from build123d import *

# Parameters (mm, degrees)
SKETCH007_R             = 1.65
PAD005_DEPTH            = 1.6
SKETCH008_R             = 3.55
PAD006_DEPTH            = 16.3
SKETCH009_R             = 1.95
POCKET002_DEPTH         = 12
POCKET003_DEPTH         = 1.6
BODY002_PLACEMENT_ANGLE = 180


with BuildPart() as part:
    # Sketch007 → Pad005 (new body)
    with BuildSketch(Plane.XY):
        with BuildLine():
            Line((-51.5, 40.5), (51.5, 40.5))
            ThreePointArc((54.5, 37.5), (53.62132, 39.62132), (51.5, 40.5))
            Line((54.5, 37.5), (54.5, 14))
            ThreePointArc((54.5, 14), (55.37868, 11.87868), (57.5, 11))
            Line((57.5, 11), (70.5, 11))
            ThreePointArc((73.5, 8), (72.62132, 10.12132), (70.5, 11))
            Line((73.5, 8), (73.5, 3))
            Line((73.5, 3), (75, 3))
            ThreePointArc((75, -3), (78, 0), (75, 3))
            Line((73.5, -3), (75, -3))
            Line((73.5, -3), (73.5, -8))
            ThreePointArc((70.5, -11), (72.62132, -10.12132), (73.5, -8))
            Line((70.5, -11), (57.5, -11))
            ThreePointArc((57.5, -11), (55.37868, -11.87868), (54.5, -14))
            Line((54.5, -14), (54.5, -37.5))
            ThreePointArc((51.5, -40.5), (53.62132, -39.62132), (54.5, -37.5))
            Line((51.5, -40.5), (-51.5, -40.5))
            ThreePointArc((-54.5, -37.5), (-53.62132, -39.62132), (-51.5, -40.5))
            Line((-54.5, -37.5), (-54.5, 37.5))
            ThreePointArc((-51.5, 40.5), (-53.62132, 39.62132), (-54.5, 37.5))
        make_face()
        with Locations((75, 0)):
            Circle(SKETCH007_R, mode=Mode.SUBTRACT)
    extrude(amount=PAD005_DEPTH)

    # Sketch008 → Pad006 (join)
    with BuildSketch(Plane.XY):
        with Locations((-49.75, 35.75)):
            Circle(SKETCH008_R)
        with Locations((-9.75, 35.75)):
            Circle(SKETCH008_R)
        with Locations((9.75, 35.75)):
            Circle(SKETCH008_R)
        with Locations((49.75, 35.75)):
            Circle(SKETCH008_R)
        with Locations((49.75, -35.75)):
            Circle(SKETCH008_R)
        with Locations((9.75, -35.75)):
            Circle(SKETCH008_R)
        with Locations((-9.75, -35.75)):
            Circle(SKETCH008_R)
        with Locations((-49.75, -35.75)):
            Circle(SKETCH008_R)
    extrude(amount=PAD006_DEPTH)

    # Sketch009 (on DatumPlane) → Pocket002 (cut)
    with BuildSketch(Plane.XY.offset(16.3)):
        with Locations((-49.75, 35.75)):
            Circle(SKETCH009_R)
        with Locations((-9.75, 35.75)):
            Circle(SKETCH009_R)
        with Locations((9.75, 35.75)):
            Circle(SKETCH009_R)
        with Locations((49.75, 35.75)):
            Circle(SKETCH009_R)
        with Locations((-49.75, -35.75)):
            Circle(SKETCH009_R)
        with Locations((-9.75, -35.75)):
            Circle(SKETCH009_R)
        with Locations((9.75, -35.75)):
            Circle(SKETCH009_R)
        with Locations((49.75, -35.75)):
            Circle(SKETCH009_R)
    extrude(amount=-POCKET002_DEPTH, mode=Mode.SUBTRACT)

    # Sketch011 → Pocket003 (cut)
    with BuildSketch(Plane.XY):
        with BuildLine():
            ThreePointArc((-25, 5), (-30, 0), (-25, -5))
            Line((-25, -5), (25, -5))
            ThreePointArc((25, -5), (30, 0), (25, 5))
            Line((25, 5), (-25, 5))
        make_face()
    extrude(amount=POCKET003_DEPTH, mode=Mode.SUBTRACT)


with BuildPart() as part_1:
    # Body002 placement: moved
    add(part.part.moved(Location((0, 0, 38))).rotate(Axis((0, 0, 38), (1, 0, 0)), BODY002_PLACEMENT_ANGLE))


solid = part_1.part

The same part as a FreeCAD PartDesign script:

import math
import FreeCAD as App
import Part
import Sketcher
from FreeCAD import Vector
Q = App.Units.Quantity

doc = App.newDocument("Part")
params = doc.addObject("Spreadsheet::Sheet", "Params")
for row, (alias, value) in enumerate([
    ("sketch1_radius", "3.000001 mm"),
    ("sketch1_diameter", "3.3 mm"),
    ("sketch1_width", "103 mm"),
    ("sketch1_width2", "13 mm"),
    ("sketch1_height", "75 mm"),
    ("pad1_length", "1.6 mm"),
    ("sketch2_diameter", "7.1 mm"),
    ("pad2_length", "16.3 mm"),
    ("sketch3_diameter", "3.9 mm"),
    ("pocket1_length", "12 mm"),
    ("sketch4_radius", "5 mm"),
    ("sketch4_width", "50 mm"),
    ("pocket2_length", "1.6 mm"),
], start=1):
    params.set(f"A{row}", alias)
    params.set(f"B{row}", "=" + value)
    params.setAlias(f"B{row}", alias)

body = doc.addObject("PartDesign::Body", "Body")

# Sketch on XY plane
sketch1 = body.newObject("Sketcher::SketchObject", "Sketch")
sketch1.AttachmentSupport = (doc.getObject("XY_Plane"), [""])
sketch1.MapMode = "FlatFace"
sketch1.addGeometry(Part.LineSegment(Vector(51.5, 40.5, 0), Vector(-51.5, 40.5, 0)), False)
sketch1.addGeometry(Part.ArcOfCircle(Part.Circle(Vector(-51.5, 37.5, 0), Vector(0, 0, 1), 3), math.radians(90), math.radians(180)), False)
sketch1.addGeometry(Part.LineSegment(Vector(-54.5, 37.5, 0), Vector(-54.5, -37.5, 0)), False)
sketch1.addGeometry(Part.ArcOfCircle(Part.Circle(Vector(-51.5, -37.5, 0), Vector(0, 0, 1), 3), math.radians(-180), math.radians(-90)), False)
sketch1.addGeometry(Part.LineSegment(Vector(-51.5, -40.5, 0), Vector(51.5, -40.5, 0)), False)
sketch1.addGeometry(Part.ArcOfCircle(Part.Circle(Vector(51.5, -37.5, 0), Vector(0, 0, 1), 3), math.radians(-90), math.radians(0)), False)
sketch1.addGeometry(Part.LineSegment(Vector(54.5, -37.5, 0), Vector(54.5, -14, 0)), False)
sketch1.addGeometry(Part.ArcOfCircle(Part.Circle(Vector(57.5, -14, 0), Vector(0, 0, 1), 3), math.radians(90), math.radians(180)), False)
sketch1.addGeometry(Part.LineSegment(Vector(57.5, -11, 0), Vector(70.5, -11, 0)), False)
sketch1.addGeometry(Part.ArcOfCircle(Part.Circle(Vector(70.5, -8, 0), Vector(0, 0, 1), 3), math.radians(-90), math.radians(0)), False)
sketch1.addGeometry(Part.LineSegment(Vector(73.5, -8, 0), Vector(73.5, -3, 0)), False)
sketch1.addGeometry(Part.LineSegment(Vector(73.5, -3, 0), Vector(75, -3, 0)), False)
sketch1.addGeometry(Part.ArcOfCircle(Part.Circle(Vector(75, 0, 0), Vector(0, 0, 1), 3), math.radians(-90), math.radians(90)), False)
sketch1.addGeometry(Part.LineSegment(Vector(75, 3, 0), Vector(73.5, 3, 0)), False)
sketch1.addGeometry(Part.LineSegment(Vector(73.5, 3, 0), Vector(73.5, 8, 0)), False)
sketch1.addGeometry(Part.ArcOfCircle(Part.Circle(Vector(70.5, 8, 0), Vector(0, 0, 1), 3), math.radians(0), math.radians(90)), False)
sketch1.addGeometry(Part.LineSegment(Vector(70.5, 11, 0), Vector(57.5, 11, 0)), False)
sketch1.addGeometry(Part.ArcOfCircle(Part.Circle(Vector(57.5, 14, 0), Vector(0, 0, 1), 3), math.radians(-180), math.radians(-90)), False)
sketch1.addGeometry(Part.LineSegment(Vector(54.5, 14, 0), Vector(54.5, 37.5, 0)), False)
sketch1.addGeometry(Part.ArcOfCircle(Part.Circle(Vector(51.5, 37.5, 0), Vector(0, 0, 1), 3), math.radians(0), math.radians(90)), False)
sketch1.addGeometry(Part.Circle(Vector(75, 0, 0), Vector(0, 0, 1), 1.6), False)
sketch1.addConstraint(Sketcher.Constraint("Tangent", 0, 2, 1, 1))
sketch1.addConstraint(Sketcher.Constraint("Tangent", 1, 2, 2, 1))
sketch1.addConstraint(Sketcher.Constraint("Tangent", 2, 2, 3, 1))
sketch1.addConstraint(Sketcher.Constraint("Tangent", 3, 2, 4, 1))
sketch1.addConstraint(Sketcher.Constraint("Tangent", 4, 2, 5, 1))
sketch1.addConstraint(Sketcher.Constraint("Tangent", 5, 2, 6, 1))
sketch1.addConstraint(Sketcher.Constraint("Tangent", 6, 2, 7, 2))
sketch1.addConstraint(Sketcher.Constraint("Tangent", 7, 1, 8, 1))
sketch1.addConstraint(Sketcher.Constraint("Tangent", 8, 2, 9, 1))
sketch1.addConstraint(Sketcher.Constraint("Tangent", 9, 2, 10, 1))
sketch1.addConstraint(Sketcher.Constraint("Coincident", 10, 2, 11, 1))
sketch1.addConstraint(Sketcher.Constraint("Tangent", 11, 2, 12, 1))
sketch1.addConstraint(Sketcher.Constraint("Tangent", 12, 2, 13, 1))
sketch1.addConstraint(Sketcher.Constraint("Coincident", 13, 2, 14, 1))
sketch1.addConstraint(Sketcher.Constraint("Tangent", 14, 2, 15, 1))
sketch1.addConstraint(Sketcher.Constraint("Tangent", 15, 2, 16, 1))
sketch1.addConstraint(Sketcher.Constraint("Tangent", 16, 2, 17, 2))
sketch1.addConstraint(Sketcher.Constraint("Tangent", 17, 1, 18, 1))
sketch1.addConstraint(Sketcher.Constraint("Tangent", 18, 2, 19, 1))
sketch1.addConstraint(Sketcher.Constraint("Tangent", 19, 2, 0, 1))
sketch1.addConstraint(Sketcher.Constraint("Horizontal", 0))
sketch1.addConstraint(Sketcher.Constraint("Vertical", 2))
sketch1.addConstraint(Sketcher.Constraint("Horizontal", 4))
sketch1.addConstraint(Sketcher.Constraint("Vertical", 6))
sketch1.addConstraint(Sketcher.Constraint("Horizontal", 8))
sketch1.addConstraint(Sketcher.Constraint("Vertical", 10))
sketch1.addConstraint(Sketcher.Constraint("Horizontal", 11))
sketch1.addConstraint(Sketcher.Constraint("Horizontal", 13))
sketch1.addConstraint(Sketcher.Constraint("Vertical", 14))
sketch1.addConstraint(Sketcher.Constraint("Horizontal", 16))
sketch1.addConstraint(Sketcher.Constraint("Vertical", 18))
sketch1.addConstraint(Sketcher.Constraint("Coincident", 20, 3, 12, 3))
sketch1.addConstraint(Sketcher.Constraint("Equal", 1, 3))
sketch1.addConstraint(Sketcher.Constraint("Equal", 3, 5))
sketch1.addConstraint(Sketcher.Constraint("Equal", 5, 7))
sketch1.addConstraint(Sketcher.Constraint("Equal", 7, 9))
sketch1.addConstraint(Sketcher.Constraint("Equal", 9, 12))
sketch1.addConstraint(Sketcher.Constraint("Equal", 12, 15))
sketch1.addConstraint(Sketcher.Constraint("Equal", 15, 17))
sketch1.addConstraint(Sketcher.Constraint("Equal", 17, 19))
sketch1.addConstraint(Sketcher.Constraint("Symmetric", 1, 3, 5, 3, -1, 1))
sketch1.addConstraint(Sketcher.Constraint("Symmetric", 9, 3, 15, 3, -1))
sketch1.addConstraint(Sketcher.Constraint("PointOnObject", 12, 3, -1))
sketch1.addConstraint(Sketcher.Constraint("Vertical", 7, 3, 17, 3))
sketch1.addConstraint(Sketcher.Constraint("Radius", 1, Q("3.000001 mm")))
sketch1.addConstraint(Sketcher.Constraint("Diameter", 20, Q("3.3 mm")))
sketch1.addConstraint(Sketcher.Constraint("DistanceX", 0, 2, 0, 1, Q("103 mm")))
sketch1.addConstraint(Sketcher.Constraint("DistanceX", 8, 1, 8, 2, Q("13 mm")))
sketch1.addConstraint(Sketcher.Constraint("DistanceY", 2, 2, 2, 1, Q("75 mm")))
sketch1.addConstraint(Sketcher.Constraint("DistanceY", 10, 1, 10, 2, Q("5 mm")))
sketch1.addConstraint(Sketcher.Constraint("DistanceX", 11, 1, 11, 2, Q("1.5 mm")))
sketch1.setExpression("Constraints[44]", "Params.sketch1_radius")
sketch1.setExpression("Constraints[45]", "Params.sketch1_diameter")
sketch1.setExpression("Constraints[46]", "Params.sketch1_width")
sketch1.setExpression("Constraints[47]", "Params.sketch1_width2")
sketch1.setExpression("Constraints[48]", "Params.sketch1_height")
pad1 = body.newObject("PartDesign::Pad", "Pad")
pad1.Profile = sketch1
pad1.setExpression("Length", "Params.pad1_length")

# Sketch on XY plane
sketch2 = body.newObject("Sketcher::SketchObject", "Sketch001")
sketch2.AttachmentSupport = (doc.getObject("XY_Plane"), [""])
sketch2.MapMode = "FlatFace"
sketch2.addGeometry(Part.Circle(Vector(-49.8, 35.8, 0), Vector(0, 0, 1), 3.5), False)
sketch2.addGeometry(Part.Circle(Vector(-9.8, 35.8, 0), Vector(0, 0, 1), 3.5), False)
sketch2.addGeometry(Part.Circle(Vector(9.8, 35.8, 0), Vector(0, 0, 1), 3.5), False)
sketch2.addGeometry(Part.Circle(Vector(49.8, 35.8, 0), Vector(0, 0, 1), 3.5), False)
sketch2.addGeometry(Part.Circle(Vector(49.8, -35.8, 0), Vector(0, 0, 1), 3.5), False)
sketch2.addGeometry(Part.Circle(Vector(9.8, -35.8, 0), Vector(0, 0, 1), 3.5), False)
sketch2.addGeometry(Part.Circle(Vector(-9.8, -35.8, 0), Vector(0, 0, 1), 3.5), False)
sketch2.addGeometry(Part.Circle(Vector(-49.8, -35.8, 0), Vector(0, 0, 1), 3.5), False)
sketch2.addConstraint(Sketcher.Constraint("Equal", 0, 1))
sketch2.addConstraint(Sketcher.Constraint("Equal", 1, 2))
sketch2.addConstraint(Sketcher.Constraint("Equal", 2, 3))
sketch2.addConstraint(Sketcher.Constraint("Equal", 3, 4))
sketch2.addConstraint(Sketcher.Constraint("Equal", 4, 5))
sketch2.addConstraint(Sketcher.Constraint("Equal", 5, 6))
sketch2.addConstraint(Sketcher.Constraint("Equal", 6, 7))
sketch2.addConstraint(Sketcher.Constraint("Symmetric", 0, 3, 4, 3, -1, 1))
sketch2.addConstraint(Sketcher.Constraint("Symmetric", 1, 3, 5, 3, -1, 1))
sketch2.addConstraint(Sketcher.Constraint("Symmetric", 2, 3, 6, 3, -1, 1))
sketch2.addConstraint(Sketcher.Constraint("Symmetric", 3, 3, 7, 3, -1, 1))
sketch2.addConstraint(Sketcher.Constraint("Symmetric", 1, 3, 2, 3, -2))
sketch2.addConstraint(Sketcher.Constraint("Symmetric", 0, 3, 3, 3, -2))
sketch2.addConstraint(Sketcher.Constraint("Horizontal", 0, 3, 1, 3))
sketch2.addConstraint(Sketcher.Constraint("Diameter", 0, Q("7.1 mm")))
sketch2.addConstraint(Sketcher.Constraint("DistanceX", 0, 3, 1, 3, Q("40 mm")))
sketch2.addConstraint(Sketcher.Constraint("DistanceX", 1, 3, 2, 3, Q("19.5 mm")))
sketch2.addConstraint(Sketcher.Constraint("DistanceY", 4, 3, 3, 3, Q("71.5 mm")))
sketch2.setExpression("Constraints[14]", "Params.sketch2_diameter")
pad2 = body.newObject("PartDesign::Pad", "Pad001")
pad2.Profile = sketch2
pad2.setExpression("Length", "Params.pad2_length")

# Sketch on XY plane
sketch3 = body.newObject("Sketcher::SketchObject", "Sketch002")
sketch3.AttachmentSupport = (doc.getObject("XY_Plane"), [""])
sketch3.MapMode = "FlatFace"
sketch3.AttachmentOffset = App.Placement(Vector(0, 0, 16.3), App.Rotation())
sketch3.addGeometry(Part.Circle(Vector(-49.8, 35.8, 0), Vector(0, 0, 1), 1.9), False)
sketch3.addGeometry(Part.Circle(Vector(-9.8, 35.8, 0), Vector(0, 0, 1), 1.9), False)
sketch3.addGeometry(Part.Circle(Vector(9.8, 35.8, 0), Vector(0, 0, 1), 1.9), False)
sketch3.addGeometry(Part.Circle(Vector(49.8, 35.8, 0), Vector(0, 0, 1), 1.9), False)
sketch3.addGeometry(Part.Circle(Vector(-49.8, -35.8, 0), Vector(0, 0, 1), 1.9), False)
sketch3.addGeometry(Part.Circle(Vector(-9.8, -35.8, 0), Vector(0, 0, 1), 1.9), False)
sketch3.addGeometry(Part.Circle(Vector(9.8, -35.8, 0), Vector(0, 0, 1), 1.9), False)
sketch3.addGeometry(Part.Circle(Vector(49.8, -35.8, 0), Vector(0, 0, 1), 1.9), False)
sketch3.addConstraint(Sketcher.Constraint("Equal", 0, 1))
sketch3.addConstraint(Sketcher.Constraint("Equal", 1, 2))
sketch3.addConstraint(Sketcher.Constraint("Equal", 2, 3))
sketch3.addConstraint(Sketcher.Constraint("Equal", 3, 4))
sketch3.addConstraint(Sketcher.Constraint("Equal", 4, 5))
sketch3.addConstraint(Sketcher.Constraint("Equal", 5, 6))
sketch3.addConstraint(Sketcher.Constraint("Equal", 6, 7))
sketch3.addConstraint(Sketcher.Constraint("Symmetric", 3, 3, 4, 3, -1, 1))
sketch3.addConstraint(Sketcher.Constraint("Symmetric", 2, 3, 5, 3, -1, 1))
sketch3.addConstraint(Sketcher.Constraint("Symmetric", 1, 3, 6, 3, -1, 1))
sketch3.addConstraint(Sketcher.Constraint("Symmetric", 0, 3, 7, 3, -1, 1))
sketch3.addConstraint(Sketcher.Constraint("Symmetric", 1, 3, 2, 3, -2))
sketch3.addConstraint(Sketcher.Constraint("Symmetric", 0, 3, 3, 3, -2))
sketch3.addConstraint(Sketcher.Constraint("Horizontal", 0, 3, 1, 3))
sketch3.addConstraint(Sketcher.Constraint("Diameter", 0, Q("3.9 mm")))
sketch3.addConstraint(Sketcher.Constraint("DistanceX", 0, 3, 1, 3, Q("40 mm")))
sketch3.addConstraint(Sketcher.Constraint("DistanceX", 1, 3, 2, 3, Q("19.5 mm")))
sketch3.addConstraint(Sketcher.Constraint("DistanceY", 4, 3, 0, 3, Q("71.5 mm")))
sketch3.setExpression("Constraints[14]", "Params.sketch3_diameter")
pocket1 = body.newObject("PartDesign::Pocket", "Pocket")
pocket1.Profile = sketch3
pocket1.setExpression("Length", "Params.pocket1_length")

# Sketch on XY plane
sketch4 = body.newObject("Sketcher::SketchObject", "Sketch003")
sketch4.AttachmentSupport = (doc.getObject("XY_Plane"), [""])
sketch4.MapMode = "FlatFace"
sketch4.addGeometry(Part.ArcOfCircle(Part.Circle(Vector(-25, 0, 0), Vector(0, 0, 1), 5), math.radians(90), math.radians(270)), False)
sketch4.addGeometry(Part.LineSegment(Vector(-25, -5, 0), Vector(25, -5, 0)), False)
sketch4.addGeometry(Part.ArcOfCircle(Part.Circle(Vector(25, 0, 0), Vector(0, 0, 1), 5), math.radians(-90), math.radians(90)), False)
sketch4.addGeometry(Part.LineSegment(Vector(25, 5, 0), Vector(-25, 5, 0)), False)
sketch4.addConstraint(Sketcher.Constraint("Tangent", 0, 2, 1, 1))
sketch4.addConstraint(Sketcher.Constraint("Tangent", 1, 2, 2, 1))
sketch4.addConstraint(Sketcher.Constraint("Tangent", 2, 2, 3, 1))
sketch4.addConstraint(Sketcher.Constraint("Tangent", 3, 2, 0, 1))
sketch4.addConstraint(Sketcher.Constraint("Horizontal", 1))
sketch4.addConstraint(Sketcher.Constraint("Horizontal", 3))
sketch4.addConstraint(Sketcher.Constraint("Symmetric", 0, 3, 2, 3, -1, 1))
sketch4.addConstraint(Sketcher.Constraint("Radius", 0, Q("5 mm")))
sketch4.addConstraint(Sketcher.Constraint("DistanceX", 1, 1, 1, 2, Q("50 mm")))
sketch4.setExpression("Constraints[7]", "Params.sketch4_radius")
sketch4.setExpression("Constraints[8]", "Params.sketch4_width")
pocket2 = body.newObject("PartDesign::Pocket", "Pocket001")
pocket2.Profile = sketch4
pocket2.setExpression("Length", "Params.pocket2_length")
pocket2.Reversed = True
body2 = doc.addObject("PartDesign::Body", "Body001")
doc.recompute()

body.Placement = App.Placement(Vector(0, 0, 38), App.Rotation(Vector(1, 0, 0), 180))
boolean = body2.newObject("PartDesign::Boolean", "Boolean")
boolean.Type = "Fuse"
boolean.addObjects([body])

doc.recompute()
